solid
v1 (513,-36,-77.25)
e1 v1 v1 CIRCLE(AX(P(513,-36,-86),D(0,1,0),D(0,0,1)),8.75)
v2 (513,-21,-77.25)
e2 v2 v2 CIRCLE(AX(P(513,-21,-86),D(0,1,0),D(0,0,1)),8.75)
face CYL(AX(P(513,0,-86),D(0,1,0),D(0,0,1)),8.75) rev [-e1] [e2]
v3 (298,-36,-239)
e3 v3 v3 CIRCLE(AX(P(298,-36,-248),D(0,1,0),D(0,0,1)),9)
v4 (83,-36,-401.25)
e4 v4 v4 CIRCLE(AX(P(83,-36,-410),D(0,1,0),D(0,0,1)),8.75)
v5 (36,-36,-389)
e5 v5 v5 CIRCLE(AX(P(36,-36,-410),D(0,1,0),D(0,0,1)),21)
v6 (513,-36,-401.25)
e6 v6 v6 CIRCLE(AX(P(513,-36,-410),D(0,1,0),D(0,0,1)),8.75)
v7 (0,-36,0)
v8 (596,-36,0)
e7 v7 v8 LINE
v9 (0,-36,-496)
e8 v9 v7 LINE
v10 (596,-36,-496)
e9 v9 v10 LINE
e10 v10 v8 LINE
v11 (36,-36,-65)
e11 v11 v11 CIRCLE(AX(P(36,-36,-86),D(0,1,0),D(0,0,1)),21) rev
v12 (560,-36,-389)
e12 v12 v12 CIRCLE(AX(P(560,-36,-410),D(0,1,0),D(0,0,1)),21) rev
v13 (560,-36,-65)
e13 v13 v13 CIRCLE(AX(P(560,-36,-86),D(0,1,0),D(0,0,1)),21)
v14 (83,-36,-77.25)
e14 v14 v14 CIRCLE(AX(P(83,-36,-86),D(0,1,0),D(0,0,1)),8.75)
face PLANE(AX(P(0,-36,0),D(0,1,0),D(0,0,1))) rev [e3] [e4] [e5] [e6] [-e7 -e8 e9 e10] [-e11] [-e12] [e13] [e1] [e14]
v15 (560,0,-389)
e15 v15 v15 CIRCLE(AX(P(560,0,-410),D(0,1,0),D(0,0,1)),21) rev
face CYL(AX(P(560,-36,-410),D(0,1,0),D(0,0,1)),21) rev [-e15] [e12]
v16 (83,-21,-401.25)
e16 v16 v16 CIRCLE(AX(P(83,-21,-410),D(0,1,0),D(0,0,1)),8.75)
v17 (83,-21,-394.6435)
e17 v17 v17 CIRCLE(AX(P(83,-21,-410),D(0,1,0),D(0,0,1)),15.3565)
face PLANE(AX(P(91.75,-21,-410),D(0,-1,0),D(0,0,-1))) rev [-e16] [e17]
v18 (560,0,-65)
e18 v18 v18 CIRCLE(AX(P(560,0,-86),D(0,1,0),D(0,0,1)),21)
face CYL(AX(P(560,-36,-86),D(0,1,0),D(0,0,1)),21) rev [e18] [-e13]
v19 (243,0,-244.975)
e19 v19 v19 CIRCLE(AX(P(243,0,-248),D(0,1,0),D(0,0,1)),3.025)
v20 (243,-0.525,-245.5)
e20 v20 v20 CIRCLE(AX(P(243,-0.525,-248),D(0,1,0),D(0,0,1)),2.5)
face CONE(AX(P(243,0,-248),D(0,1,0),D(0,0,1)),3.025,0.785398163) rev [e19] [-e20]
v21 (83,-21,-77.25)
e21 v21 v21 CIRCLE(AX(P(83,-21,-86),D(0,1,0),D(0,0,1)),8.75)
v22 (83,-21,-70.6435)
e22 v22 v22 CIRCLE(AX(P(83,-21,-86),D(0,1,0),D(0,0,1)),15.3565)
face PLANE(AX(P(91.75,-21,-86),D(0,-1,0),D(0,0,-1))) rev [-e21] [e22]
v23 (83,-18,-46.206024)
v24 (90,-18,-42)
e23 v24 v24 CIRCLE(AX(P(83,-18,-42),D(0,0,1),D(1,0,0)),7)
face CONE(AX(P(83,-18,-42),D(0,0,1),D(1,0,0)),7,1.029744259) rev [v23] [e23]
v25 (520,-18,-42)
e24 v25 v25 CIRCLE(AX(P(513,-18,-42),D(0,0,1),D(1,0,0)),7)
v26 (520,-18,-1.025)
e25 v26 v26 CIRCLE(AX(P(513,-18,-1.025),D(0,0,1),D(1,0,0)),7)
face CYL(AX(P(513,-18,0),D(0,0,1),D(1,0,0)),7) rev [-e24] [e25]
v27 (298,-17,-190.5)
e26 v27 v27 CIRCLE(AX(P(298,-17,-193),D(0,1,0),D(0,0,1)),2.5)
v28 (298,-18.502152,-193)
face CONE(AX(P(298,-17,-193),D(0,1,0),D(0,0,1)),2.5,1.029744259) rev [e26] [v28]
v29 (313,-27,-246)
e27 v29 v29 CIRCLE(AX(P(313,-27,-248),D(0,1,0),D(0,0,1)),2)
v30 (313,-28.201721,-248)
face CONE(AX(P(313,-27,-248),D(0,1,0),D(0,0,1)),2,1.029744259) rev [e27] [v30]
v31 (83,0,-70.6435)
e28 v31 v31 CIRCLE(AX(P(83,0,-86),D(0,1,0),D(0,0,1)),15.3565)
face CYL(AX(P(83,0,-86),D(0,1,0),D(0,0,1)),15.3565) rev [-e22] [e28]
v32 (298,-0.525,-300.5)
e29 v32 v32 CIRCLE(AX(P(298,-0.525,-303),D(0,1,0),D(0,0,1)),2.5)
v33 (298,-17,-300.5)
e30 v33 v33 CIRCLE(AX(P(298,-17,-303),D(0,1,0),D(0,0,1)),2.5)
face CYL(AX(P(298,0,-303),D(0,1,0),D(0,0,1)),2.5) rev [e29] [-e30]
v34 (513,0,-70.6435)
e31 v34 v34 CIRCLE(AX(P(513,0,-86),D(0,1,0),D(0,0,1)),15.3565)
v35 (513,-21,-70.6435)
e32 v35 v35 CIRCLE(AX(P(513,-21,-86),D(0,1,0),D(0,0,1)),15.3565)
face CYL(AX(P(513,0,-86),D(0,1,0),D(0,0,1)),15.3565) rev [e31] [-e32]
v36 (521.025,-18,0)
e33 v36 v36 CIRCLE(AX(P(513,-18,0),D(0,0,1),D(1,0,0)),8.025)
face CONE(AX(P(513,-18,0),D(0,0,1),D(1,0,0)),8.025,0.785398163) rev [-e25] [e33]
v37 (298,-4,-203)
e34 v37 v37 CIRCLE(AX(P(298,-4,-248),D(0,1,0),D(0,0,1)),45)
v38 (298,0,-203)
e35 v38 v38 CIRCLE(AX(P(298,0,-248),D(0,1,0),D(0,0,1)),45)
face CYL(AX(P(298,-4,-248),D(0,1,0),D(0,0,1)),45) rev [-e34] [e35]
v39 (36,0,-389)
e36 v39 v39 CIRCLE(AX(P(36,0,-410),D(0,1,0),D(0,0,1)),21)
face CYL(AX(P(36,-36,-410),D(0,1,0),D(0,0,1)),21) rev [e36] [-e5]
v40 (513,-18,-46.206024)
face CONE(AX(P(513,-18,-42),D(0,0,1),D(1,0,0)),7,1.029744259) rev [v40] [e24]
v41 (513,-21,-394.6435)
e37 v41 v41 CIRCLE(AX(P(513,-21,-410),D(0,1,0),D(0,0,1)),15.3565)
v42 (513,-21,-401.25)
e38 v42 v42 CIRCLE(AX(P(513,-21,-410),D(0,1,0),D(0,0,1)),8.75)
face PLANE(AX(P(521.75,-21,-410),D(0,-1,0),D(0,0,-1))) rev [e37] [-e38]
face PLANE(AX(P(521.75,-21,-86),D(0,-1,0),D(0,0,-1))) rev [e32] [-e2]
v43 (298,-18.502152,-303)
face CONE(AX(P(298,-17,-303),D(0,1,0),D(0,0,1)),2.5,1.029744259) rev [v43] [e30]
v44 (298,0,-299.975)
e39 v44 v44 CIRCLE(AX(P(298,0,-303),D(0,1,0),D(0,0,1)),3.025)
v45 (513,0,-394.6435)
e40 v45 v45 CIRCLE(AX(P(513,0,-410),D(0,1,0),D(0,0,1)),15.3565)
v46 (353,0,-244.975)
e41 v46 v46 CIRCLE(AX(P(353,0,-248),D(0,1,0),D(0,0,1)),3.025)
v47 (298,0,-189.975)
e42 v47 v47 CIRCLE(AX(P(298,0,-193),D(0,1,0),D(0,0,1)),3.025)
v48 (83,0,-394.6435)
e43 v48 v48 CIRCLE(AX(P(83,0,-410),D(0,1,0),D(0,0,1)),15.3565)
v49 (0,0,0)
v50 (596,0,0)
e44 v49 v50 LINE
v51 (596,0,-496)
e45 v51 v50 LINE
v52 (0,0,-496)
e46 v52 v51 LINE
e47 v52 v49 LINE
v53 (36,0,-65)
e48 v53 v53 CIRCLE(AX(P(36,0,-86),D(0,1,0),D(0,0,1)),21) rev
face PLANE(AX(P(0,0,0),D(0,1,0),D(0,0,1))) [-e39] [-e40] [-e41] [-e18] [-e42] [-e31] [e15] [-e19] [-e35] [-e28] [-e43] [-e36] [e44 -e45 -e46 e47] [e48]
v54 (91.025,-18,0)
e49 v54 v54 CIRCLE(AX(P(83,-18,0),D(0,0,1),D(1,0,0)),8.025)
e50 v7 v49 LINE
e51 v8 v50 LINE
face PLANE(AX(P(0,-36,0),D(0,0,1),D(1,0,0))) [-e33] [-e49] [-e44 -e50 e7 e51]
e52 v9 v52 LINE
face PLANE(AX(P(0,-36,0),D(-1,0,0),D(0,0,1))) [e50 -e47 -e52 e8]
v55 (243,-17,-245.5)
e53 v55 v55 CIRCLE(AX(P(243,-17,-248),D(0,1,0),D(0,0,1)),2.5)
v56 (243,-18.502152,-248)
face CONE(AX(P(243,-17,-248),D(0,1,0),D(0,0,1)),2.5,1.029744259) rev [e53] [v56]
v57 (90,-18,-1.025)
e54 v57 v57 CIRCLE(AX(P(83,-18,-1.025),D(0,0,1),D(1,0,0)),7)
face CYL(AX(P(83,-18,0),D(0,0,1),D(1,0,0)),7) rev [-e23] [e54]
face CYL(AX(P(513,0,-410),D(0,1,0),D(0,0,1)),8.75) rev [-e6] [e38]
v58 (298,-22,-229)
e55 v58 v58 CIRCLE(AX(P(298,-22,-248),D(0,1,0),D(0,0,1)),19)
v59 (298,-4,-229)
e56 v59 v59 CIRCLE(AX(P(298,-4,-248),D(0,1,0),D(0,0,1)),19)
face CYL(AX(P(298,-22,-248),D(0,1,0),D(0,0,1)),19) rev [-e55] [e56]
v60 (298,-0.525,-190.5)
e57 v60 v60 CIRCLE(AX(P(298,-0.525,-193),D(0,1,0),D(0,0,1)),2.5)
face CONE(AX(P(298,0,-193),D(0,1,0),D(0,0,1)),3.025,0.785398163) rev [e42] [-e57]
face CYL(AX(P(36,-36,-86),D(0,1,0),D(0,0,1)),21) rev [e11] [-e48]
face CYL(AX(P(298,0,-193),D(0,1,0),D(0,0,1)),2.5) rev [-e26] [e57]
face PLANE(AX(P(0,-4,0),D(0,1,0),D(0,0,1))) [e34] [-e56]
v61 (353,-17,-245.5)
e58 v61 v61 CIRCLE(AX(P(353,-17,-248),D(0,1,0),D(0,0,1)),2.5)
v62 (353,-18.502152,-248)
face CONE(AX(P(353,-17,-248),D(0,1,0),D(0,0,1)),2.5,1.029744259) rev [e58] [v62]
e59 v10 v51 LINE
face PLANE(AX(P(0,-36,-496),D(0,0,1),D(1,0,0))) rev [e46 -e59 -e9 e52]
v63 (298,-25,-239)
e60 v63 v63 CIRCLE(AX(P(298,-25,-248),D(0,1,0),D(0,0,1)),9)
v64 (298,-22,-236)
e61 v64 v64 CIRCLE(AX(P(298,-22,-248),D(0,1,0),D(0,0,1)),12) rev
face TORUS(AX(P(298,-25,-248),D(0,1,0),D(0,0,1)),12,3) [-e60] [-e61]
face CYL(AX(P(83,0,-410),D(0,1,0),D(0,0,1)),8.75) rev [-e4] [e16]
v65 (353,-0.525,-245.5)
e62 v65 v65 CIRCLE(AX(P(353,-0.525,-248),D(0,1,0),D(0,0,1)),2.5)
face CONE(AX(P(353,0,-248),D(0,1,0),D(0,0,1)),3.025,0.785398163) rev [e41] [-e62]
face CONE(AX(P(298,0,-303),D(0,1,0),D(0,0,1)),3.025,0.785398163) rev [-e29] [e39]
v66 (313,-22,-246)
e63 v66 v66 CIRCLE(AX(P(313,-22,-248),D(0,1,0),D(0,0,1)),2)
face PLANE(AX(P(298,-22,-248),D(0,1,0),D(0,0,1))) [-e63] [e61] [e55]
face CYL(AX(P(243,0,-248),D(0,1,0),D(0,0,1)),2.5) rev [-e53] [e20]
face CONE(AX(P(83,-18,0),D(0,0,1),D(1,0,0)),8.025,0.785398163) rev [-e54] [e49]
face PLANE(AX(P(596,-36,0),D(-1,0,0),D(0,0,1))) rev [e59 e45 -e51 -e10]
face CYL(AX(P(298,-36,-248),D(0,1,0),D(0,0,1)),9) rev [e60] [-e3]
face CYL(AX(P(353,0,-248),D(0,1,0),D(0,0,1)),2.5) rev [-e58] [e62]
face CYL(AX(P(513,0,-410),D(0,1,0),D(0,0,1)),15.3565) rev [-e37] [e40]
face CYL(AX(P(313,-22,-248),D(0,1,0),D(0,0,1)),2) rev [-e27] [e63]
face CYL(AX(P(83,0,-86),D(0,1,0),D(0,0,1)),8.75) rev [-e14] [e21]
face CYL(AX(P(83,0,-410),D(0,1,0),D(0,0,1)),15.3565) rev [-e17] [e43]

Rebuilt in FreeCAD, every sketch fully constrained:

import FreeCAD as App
import Part
import Sketcher
from FreeCAD import Vector


def edges_at(feature, points):
    """Names of the edges that pass closest to the given points."""
    edges = feature.Shape.Edges
    near = lambda p: min(range(len(edges)), key=lambda i: edges[i].distToShape(Part.Vertex(*p))[0])
    return sorted({f"Edge{near(p) + 1}" for p in points})


def add_polygon(sketch, points):
    """Adds a closed chain of lines whose ends are joined by coincident constraints."""
    first, n = sketch.GeometryCount, len(points)
    for a, b in zip(points, points[1:] + points[:1]):
        sketch.addGeometry(Part.LineSegment(App.Vector(*a, 0), App.Vector(*b, 0)), False)
    for i in range(n):
        sketch.addConstraint(Sketcher.Constraint("Coincident", first + i, 2, first + (i + 1) % n, 1))

doc = App.newDocument("Part")
body = doc.addObject("PartDesign::Body", "Body")

# Sketch on XZ plane
sketch1 = body.newObject("Sketcher::SketchObject", "Sketch")
sketch1.AttachmentSupport = (doc.getObject("XZ_Plane"), [""])
sketch1.MapMode = "FlatFace"
add_polygon(sketch1, [(0, -496), (0, 0), (596, 0), (596, -496)])  # lines 0-3
sketch1.addGeometry(Part.Circle(Vector(36, -86, 0), Vector(0, 0, 1), 21), False)  # 4
sketch1.addGeometry(Part.Circle(Vector(560, -86, 0), Vector(0, 0, 1), 21), False)  # 5
sketch1.addGeometry(Part.Circle(Vector(36, -410, 0), Vector(0, 0, 1), 21), False)  # 6
sketch1.addGeometry(Part.Circle(Vector(560, -410, 0), Vector(0, 0, 1), 21), False)  # 7
sketch1.addConstraint([
    Sketcher.Constraint("Vertical", 0),
    Sketcher.Constraint("Horizontal", 1),
    Sketcher.Constraint("Vertical", 2),
    Sketcher.Constraint("Horizontal", 3),
    Sketcher.Constraint("Coincident", 0, 2, -1, 1),
    Sketcher.Constraint("Equal", 4, 5),
    Sketcher.Constraint("Equal", 5, 6),
    Sketcher.Constraint("Equal", 6, 7),
    Sketcher.Constraint("Horizontal", 4, 3, 5, 3),
    Sketcher.Constraint("Horizontal", 6, 3, 7, 3),
    Sketcher.Constraint("Vertical", 4, 3, 6, 3),
    Sketcher.Constraint("Vertical", 5, 3, 7, 3),
    Sketcher.Constraint("Diameter", 4, 42.0),
    Sketcher.Constraint("DistanceX", 1, 1, 1, 2, 596.0),
    Sketcher.Constraint("DistanceY", 0, 1, 0, 2, 496.0),
    Sketcher.Constraint("DistanceX", -1, 1, 4, 3, 36.0),
    Sketcher.Constraint("DistanceY", 4, 3, -1, 1, 86.0),
    Sketcher.Constraint("DistanceX", -1, 1, 5, 3, 560.0),
    Sketcher.Constraint("DistanceY", 6, 3, -1, 1, 410.0),
])
pad1 = body.newObject("PartDesign::Pad", "Pad")
pad1.Profile = sketch1
pad1.Length = 36

# Sketch on XZ plane
sketch2 = body.newObject("Sketcher::SketchObject", "Sketch001")
sketch2.AttachmentSupport = (doc.getObject("XZ_Plane"), [""])
sketch2.MapMode = "FlatFace"
sketch2.addGeometry(Part.Circle(Vector(298, -248, 0), Vector(0, 0, 1), 45), False)
sketch2.addConstraint([
    Sketcher.Constraint("Diameter", 0, 90.0),
    Sketcher.Constraint("DistanceX", -1, 1, 0, 3, 298.0),
    Sketcher.Constraint("DistanceY", 0, 3, -1, 1, 248.0),
])
pocket1 = body.newObject("PartDesign::Pocket", "Pocket")
pocket1.Profile = sketch2
pocket1.Length = 4
pocket1.Reversed = True

# Sketch on XZ plane
sketch3 = body.newObject("Sketcher::SketchObject", "Sketch002")
sketch3.AttachmentSupport = (doc.getObject("XZ_Plane"), [""])
sketch3.MapMode = "FlatFace"
sketch3.addGeometry([
    Part.Circle(Vector(83, -410, 0), Vector(0, 0, 1), 9),
    Part.Circle(Vector(513, -410, 0), Vector(0, 0, 1), 9),
    Part.Circle(Vector(513, -86, 0), Vector(0, 0, 1), 9),
    Part.Circle(Vector(83, -86, 0), Vector(0, 0, 1), 9),
], False)
sketch3.addConstraint([
    Sketcher.Constraint("Equal", 0, 1),
    Sketcher.Constraint("Equal", 1, 2),
    Sketcher.Constraint("Equal", 2, 3),
    Sketcher.Constraint("Horizontal", 0, 3, 1, 3),
    Sketcher.Constraint("Horizontal", 2, 3, 3, 3),
    Sketcher.Constraint("Vertical", 1, 3, 2, 3),
    Sketcher.Constraint("Vertical", 0, 3, 3, 3),
    Sketcher.Constraint("Diameter", 0, 17.5),
    Sketcher.Constraint("DistanceX", -1, 1, 0, 3, 83.0),
    Sketcher.Constraint("DistanceY", 0, 3, -1, 1, 410.0),
    Sketcher.Constraint("DistanceX", -1, 1, 1, 3, 513.0),
    Sketcher.Constraint("DistanceY", 2, 3, -1, 1, 86.0),
])
doc.recompute()
hole = body.newObject("PartDesign::Hole", "Hole")
hole.Profile = sketch3
hole.ThreadType = "None"
hole.Diameter = 17.5
hole.DepthType = "ThroughAll"
hole.HoleCutType = "Counterbore"
hole.HoleCutDiameter = 30.713
hole.HoleCutDepth = 21
hole.Reversed = True

# Sketch on XZ plane
sketch4 = body.newObject("Sketcher::SketchObject", "Sketch003")
sketch4.AttachmentSupport = (doc.getObject("XZ_Plane"), [""])
sketch4.MapMode = "FlatFace"
sketch4.AttachmentOffset = App.Placement(Vector(0, 0, 4), App.Rotation())
sketch4.addGeometry(Part.Circle(Vector(298, -248, 0), Vector(0, 0, 1), 9), False)
sketch4.addConstraint([
    Sketcher.Constraint("Diameter", 0, 18.0),
    Sketcher.Constraint("DistanceX", -1, 1, 0, 3, 298.0),
    Sketcher.Constraint("DistanceY", 0, 3, -1, 1, 248.0),
])
pocket2 = body.newObject("PartDesign::Pocket", "Pocket001")
pocket2.Profile = sketch4
pocket2.Type = "ThroughAll"
pocket2.Reversed = True

# Sketch on XZ plane
sketch5 = body.newObject("Sketcher::SketchObject", "Sketch004")
sketch5.AttachmentSupport = (doc.getObject("XZ_Plane"), [""])
sketch5.MapMode = "FlatFace"
sketch5.AttachmentOffset = App.Placement(Vector(0, 0, 4), App.Rotation())
sketch5.addGeometry([
    Part.Circle(Vector(298, -248, 0), Vector(0, 0, 1), 19),
    Part.Circle(Vector(298, -248, 0), Vector(0, 0, 1), 9),
], False)
sketch5.addConstraint([
    Sketcher.Constraint("Coincident", 1, 3, 0, 3),
    Sketcher.Constraint("Diameter", 0, 38.0),
    Sketcher.Constraint("Diameter", 1, 18.0),
    Sketcher.Constraint("DistanceX", -1, 1, 0, 3, 298.0),
    Sketcher.Constraint("DistanceY", 0, 3, -1, 1, 248.0),
])
pocket3 = body.newObject("PartDesign::Pocket", "Pocket002")
pocket3.Profile = sketch5
pocket3.Length = 18
pocket3.Reversed = True
doc.recompute()

fillet = body.newObject("PartDesign::Fillet", "Fillet")
fillet.Base = (pocket3, edges_at(pocket3, [(298, -22, -257)]))
fillet.Radius = 3

# Sketch on XZ plane
sketch6 = body.newObject("Sketcher::SketchObject", "Sketch005")
sketch6.AttachmentSupport = (doc.getObject("XZ_Plane"), [""])
sketch6.MapMode = "FlatFace"
sketch6.AttachmentOffset = App.Placement(Vector(0, 0, 22), App.Rotation())
sketch6.addGeometry(Part.Circle(Vector(313, -248, 0), Vector(0, 0, 1), 2), False)
sketch6.addConstraint([
    Sketcher.Constraint("Diameter", 0, 4.0),
    Sketcher.Constraint("DistanceX", -1, 1, 0, 3, 313.0),
    Sketcher.Constraint("DistanceY", 0, 3, -1, 1, 248.0),
])
doc.recompute()
hole2 = body.newObject("PartDesign::Hole", "Hole001")
hole2.Profile = sketch6
hole2.ThreadType = "None"
hole2.Diameter = 4
hole2.DepthType = "Dimension"
hole2.Depth = 5
hole2.DrillPoint = "Angled"
hole2.DrillPointAngle = 118
hole2.Reversed = True

# Sketch on XZ plane
sketch7 = body.newObject("Sketcher::SketchObject", "Sketch006")
sketch7.AttachmentSupport = (doc.getObject("XZ_Plane"), [""])
sketch7.MapMode = "FlatFace"
sketch7.addGeometry([
    Part.Circle(Vector(243, -248, 0), Vector(0, 0, 1), 2.5),
    Part.Circle(Vector(298, -303, 0), Vector(0, 0, 1), 2.5),
    Part.Circle(Vector(353, -248, 0), Vector(0, 0, 1), 2.5),
    Part.Circle(Vector(298, -193, 0), Vector(0, 0, 1), 2.5),
], False)
sketch7.addConstraint([
    Sketcher.Constraint("Equal", 0, 1),
    Sketcher.Constraint("Equal", 1, 2),
    Sketcher.Constraint("Equal", 2, 3),
    Sketcher.Constraint("Horizontal", 0, 3, 2, 3),
    Sketcher.Constraint("Vertical", 1, 3, 3, 3),
    Sketcher.Constraint("Diameter", 0, 5.0),
    Sketcher.Constraint("DistanceX", -1, 1, 0, 3, 243.0),
    Sketcher.Constraint("DistanceY", 0, 3, -1, 1, 248.0),
    Sketcher.Constraint("DistanceX", -1, 1, 1, 3, 298.0),
    Sketcher.Constraint("DistanceY", 1, 3, -1, 1, 303.0),
    Sketcher.Constraint("DistanceX", -1, 1, 2, 3, 353.0),
    Sketcher.Constraint("DistanceY", 3, 3, -1, 1, 193.0),
])
doc.recompute()
hole3 = body.newObject("PartDesign::Hole", "Hole002")
hole3.Profile = sketch7
hole3.ThreadType = "None"
hole3.Diameter = 5
hole3.DepthType = "Dimension"
hole3.Depth = 17
hole3.DrillPoint = "Angled"
hole3.DrillPointAngle = 118
hole3.HoleCutType = "Countersink"
hole3.HoleCutDiameter = 6.05
hole3.HoleCutCountersinkAngle = 90
hole3.Reversed = True

# Sketch on XY plane
sketch8 = body.newObject("Sketcher::SketchObject", "Sketch007")
sketch8.AttachmentSupport = (doc.getObject("XY_Plane"), [""])
sketch8.MapMode = "FlatFace"
sketch8.addGeometry([
    Part.Circle(Vector(83, -18, 0), Vector(0, 0, 1), 7),
    Part.Circle(Vector(513, -18, 0), Vector(0, 0, 1), 7),
], False)
sketch8.addConstraint([
    Sketcher.Constraint("Equal", 0, 1),
    Sketcher.Constraint("Horizontal", 0, 3, 1, 3),
    Sketcher.Constraint("Diameter", 0, 14.0),
    Sketcher.Constraint("DistanceX", -1, 1, 0, 3, 83.0),
    Sketcher.Constraint("DistanceY", 0, 3, -1, 1, 18.0),
    Sketcher.Constraint("DistanceX", -1, 1, 1, 3, 513.0),
])
doc.recompute()
hole4 = body.newObject("PartDesign::Hole", "Hole003")
hole4.Profile = sketch8
hole4.ThreadType = "None"
hole4.Diameter = 14
hole4.DepthType = "Dimension"
hole4.Depth = 42
hole4.DrillPoint = "Angled"
hole4.DrillPointAngle = 118
hole4.HoleCutType = "Countersink"
hole4.HoleCutDiameter = 16.05
hole4.HoleCutCountersinkAngle = 90

doc.recompute()
